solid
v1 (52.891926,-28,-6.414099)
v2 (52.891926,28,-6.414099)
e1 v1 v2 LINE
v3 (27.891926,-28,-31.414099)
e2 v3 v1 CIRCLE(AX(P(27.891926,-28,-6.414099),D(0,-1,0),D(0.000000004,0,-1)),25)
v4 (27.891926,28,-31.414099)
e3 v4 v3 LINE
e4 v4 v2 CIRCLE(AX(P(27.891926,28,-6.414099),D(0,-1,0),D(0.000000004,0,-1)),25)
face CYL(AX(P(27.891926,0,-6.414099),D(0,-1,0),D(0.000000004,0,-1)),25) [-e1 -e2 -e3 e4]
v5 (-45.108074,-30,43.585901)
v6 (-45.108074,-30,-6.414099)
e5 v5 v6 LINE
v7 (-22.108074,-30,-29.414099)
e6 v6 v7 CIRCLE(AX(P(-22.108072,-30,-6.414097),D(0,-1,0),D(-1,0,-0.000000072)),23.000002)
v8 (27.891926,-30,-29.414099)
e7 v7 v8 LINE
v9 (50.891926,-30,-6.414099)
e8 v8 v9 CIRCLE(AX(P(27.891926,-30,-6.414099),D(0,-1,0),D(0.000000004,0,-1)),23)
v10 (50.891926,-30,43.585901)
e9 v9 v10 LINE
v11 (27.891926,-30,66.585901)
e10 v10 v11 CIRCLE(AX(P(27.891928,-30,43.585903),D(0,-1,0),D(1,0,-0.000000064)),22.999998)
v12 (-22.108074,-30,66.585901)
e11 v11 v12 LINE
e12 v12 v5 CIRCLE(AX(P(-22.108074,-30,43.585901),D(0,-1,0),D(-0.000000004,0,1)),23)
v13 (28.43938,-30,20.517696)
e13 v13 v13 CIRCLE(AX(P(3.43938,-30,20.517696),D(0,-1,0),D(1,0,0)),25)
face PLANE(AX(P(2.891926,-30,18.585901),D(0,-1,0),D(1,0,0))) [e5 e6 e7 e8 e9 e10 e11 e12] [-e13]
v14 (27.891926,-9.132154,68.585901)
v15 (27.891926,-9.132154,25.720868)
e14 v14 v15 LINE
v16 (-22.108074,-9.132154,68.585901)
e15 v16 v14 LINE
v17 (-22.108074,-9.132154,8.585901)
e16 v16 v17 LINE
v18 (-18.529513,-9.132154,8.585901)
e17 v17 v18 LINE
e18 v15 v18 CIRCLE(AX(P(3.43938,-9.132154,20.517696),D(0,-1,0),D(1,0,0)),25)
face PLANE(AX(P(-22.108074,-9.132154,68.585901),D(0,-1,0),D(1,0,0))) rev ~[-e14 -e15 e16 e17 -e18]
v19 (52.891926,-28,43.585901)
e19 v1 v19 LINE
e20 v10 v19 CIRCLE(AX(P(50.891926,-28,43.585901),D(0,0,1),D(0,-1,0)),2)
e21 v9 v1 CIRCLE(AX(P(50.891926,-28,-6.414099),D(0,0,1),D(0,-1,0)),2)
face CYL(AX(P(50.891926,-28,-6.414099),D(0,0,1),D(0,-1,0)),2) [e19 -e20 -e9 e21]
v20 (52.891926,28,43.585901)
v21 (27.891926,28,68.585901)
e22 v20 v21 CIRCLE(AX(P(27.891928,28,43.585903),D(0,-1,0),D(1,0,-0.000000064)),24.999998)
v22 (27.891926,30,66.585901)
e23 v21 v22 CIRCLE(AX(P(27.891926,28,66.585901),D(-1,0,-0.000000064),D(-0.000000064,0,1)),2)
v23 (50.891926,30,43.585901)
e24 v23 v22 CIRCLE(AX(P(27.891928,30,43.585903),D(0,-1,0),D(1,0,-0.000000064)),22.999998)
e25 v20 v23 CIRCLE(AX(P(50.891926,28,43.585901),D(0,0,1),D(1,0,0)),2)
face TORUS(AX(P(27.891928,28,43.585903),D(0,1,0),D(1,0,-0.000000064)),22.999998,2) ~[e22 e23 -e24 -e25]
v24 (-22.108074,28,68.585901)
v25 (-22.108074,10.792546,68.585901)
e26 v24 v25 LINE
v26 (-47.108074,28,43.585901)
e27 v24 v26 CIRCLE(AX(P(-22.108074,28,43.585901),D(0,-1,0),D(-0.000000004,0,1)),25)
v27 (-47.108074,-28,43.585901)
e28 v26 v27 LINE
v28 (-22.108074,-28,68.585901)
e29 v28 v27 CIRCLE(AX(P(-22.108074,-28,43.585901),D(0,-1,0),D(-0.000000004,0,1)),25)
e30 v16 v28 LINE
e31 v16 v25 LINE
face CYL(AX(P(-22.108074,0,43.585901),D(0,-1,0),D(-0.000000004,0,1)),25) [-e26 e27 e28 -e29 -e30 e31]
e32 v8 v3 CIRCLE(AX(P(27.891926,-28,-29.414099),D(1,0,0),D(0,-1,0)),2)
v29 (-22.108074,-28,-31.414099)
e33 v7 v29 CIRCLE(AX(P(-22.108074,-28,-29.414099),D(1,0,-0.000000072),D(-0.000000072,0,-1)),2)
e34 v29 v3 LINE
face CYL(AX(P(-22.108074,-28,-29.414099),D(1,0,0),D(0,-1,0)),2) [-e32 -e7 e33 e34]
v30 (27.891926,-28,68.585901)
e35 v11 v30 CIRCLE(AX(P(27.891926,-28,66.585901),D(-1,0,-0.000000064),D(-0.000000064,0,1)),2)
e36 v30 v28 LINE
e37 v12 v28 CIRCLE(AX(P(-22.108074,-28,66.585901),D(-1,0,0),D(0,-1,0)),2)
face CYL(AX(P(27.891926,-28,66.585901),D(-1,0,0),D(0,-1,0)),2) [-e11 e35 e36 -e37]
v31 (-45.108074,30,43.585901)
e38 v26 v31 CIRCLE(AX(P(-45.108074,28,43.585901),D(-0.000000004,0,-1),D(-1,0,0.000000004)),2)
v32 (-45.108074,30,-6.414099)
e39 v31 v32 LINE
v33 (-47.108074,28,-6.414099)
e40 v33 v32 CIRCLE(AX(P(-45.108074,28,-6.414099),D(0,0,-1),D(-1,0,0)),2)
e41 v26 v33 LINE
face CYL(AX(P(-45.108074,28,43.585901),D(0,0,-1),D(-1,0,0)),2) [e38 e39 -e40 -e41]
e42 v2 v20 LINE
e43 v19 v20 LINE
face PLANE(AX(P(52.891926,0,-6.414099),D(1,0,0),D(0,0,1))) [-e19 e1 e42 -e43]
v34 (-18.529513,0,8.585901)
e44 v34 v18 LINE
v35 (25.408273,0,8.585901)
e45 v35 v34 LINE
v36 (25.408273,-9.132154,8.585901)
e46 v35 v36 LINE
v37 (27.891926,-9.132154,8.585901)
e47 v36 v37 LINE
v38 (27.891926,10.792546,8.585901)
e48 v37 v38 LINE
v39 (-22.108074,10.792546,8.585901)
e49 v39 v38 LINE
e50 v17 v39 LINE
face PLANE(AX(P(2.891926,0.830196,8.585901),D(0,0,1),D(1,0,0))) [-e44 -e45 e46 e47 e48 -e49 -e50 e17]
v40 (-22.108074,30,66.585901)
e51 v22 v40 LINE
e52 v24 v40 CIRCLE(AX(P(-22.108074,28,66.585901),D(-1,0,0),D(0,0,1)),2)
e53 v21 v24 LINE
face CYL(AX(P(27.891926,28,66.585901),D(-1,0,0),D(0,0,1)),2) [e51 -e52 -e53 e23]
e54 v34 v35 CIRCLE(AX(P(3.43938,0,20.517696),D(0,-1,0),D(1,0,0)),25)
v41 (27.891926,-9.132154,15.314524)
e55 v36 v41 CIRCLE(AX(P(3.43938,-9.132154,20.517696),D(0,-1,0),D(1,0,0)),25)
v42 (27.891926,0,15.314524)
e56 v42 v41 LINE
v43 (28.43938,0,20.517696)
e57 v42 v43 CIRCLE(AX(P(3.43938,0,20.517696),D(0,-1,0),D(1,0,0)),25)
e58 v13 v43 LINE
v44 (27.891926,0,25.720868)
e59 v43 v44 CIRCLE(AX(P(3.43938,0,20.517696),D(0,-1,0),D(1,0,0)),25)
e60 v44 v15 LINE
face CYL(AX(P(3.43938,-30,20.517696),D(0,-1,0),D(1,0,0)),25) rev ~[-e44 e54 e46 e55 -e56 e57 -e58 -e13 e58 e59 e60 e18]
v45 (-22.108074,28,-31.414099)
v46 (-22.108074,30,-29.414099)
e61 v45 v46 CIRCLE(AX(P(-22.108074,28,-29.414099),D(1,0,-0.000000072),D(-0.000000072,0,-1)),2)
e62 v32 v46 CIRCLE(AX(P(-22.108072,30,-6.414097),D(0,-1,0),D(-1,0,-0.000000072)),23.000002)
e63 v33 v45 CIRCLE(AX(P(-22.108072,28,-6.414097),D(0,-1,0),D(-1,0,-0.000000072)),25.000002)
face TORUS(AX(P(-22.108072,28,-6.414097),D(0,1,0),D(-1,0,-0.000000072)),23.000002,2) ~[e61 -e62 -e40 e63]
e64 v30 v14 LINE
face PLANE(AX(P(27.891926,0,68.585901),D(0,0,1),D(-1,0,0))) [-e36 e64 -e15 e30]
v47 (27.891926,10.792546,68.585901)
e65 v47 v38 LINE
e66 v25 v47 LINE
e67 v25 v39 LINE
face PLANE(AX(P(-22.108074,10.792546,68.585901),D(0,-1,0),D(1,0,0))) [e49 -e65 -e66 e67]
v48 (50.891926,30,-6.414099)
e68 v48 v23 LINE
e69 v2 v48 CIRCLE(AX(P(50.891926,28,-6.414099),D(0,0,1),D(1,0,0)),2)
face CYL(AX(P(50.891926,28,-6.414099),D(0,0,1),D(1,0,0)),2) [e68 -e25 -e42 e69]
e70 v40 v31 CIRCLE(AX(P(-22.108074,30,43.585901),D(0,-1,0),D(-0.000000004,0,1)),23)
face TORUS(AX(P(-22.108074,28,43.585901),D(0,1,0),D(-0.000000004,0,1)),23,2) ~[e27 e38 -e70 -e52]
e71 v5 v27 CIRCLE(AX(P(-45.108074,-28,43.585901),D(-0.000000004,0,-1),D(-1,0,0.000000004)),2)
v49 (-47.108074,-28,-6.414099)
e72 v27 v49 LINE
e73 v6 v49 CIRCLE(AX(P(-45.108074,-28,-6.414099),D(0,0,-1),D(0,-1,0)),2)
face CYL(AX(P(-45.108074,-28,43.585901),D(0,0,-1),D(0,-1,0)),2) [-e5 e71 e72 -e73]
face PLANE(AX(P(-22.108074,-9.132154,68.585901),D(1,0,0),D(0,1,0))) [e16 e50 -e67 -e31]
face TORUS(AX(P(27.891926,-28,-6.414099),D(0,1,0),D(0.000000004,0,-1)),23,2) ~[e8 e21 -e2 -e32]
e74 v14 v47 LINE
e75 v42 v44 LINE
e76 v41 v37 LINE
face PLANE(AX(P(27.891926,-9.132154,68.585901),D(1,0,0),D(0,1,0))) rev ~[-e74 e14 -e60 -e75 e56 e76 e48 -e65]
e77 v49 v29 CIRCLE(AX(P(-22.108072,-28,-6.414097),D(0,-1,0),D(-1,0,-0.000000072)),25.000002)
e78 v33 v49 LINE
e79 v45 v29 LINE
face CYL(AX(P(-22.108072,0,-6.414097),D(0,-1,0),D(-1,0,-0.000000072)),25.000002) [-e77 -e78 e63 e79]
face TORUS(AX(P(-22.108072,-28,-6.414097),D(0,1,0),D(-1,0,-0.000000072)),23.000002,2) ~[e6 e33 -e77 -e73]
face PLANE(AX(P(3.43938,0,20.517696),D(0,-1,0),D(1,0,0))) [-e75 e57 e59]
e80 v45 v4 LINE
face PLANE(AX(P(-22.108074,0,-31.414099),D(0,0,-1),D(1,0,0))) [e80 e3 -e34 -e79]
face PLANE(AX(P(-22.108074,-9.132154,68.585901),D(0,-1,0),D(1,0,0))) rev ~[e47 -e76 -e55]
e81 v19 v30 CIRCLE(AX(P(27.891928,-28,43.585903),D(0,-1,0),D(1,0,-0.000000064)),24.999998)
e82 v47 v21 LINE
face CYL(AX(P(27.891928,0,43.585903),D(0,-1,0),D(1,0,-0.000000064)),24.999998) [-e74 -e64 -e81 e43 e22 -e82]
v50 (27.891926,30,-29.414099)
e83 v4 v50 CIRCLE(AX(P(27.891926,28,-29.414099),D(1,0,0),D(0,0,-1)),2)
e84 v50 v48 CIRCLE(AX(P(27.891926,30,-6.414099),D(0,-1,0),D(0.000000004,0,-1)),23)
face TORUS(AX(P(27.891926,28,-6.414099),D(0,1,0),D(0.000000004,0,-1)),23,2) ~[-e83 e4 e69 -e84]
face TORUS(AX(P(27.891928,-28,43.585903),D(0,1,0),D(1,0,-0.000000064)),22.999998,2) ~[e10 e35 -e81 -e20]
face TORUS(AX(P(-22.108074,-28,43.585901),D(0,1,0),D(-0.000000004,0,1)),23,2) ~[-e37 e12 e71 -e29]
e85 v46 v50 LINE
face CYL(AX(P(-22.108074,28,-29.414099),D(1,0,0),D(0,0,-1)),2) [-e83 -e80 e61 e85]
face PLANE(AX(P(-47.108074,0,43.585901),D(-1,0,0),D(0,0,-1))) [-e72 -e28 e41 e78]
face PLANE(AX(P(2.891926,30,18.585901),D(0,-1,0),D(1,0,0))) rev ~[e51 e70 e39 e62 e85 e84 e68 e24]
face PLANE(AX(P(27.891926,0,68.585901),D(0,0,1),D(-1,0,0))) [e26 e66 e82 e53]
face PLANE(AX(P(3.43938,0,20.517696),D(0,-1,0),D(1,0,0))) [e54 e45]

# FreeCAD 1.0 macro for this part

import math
import FreeCAD as App
import Part
import Sketcher
from FreeCAD import Vector


def edges_at(feature, points):
    """Names of the edges that pass closest to the given points."""
    edges = feature.Shape.Edges
    near = lambda p: min(range(len(edges)), key=lambda i: edges[i].distToShape(Part.Vertex(*p))[0])
    return sorted({f"Edge{near(p) + 1}" for p in points})

doc = App.newDocument("Part")
body = doc.addObject("PartDesign::Body", "Body")

# Sketch on XZ plane
sketch1 = doc.addObject("Sketcher::SketchObject", "Sketch")
body.addObject(sketch1)
sketch1.AttachmentSupport = (doc.XZ_Plane, [""])
sketch1.MapMode = "FlatFace"
sketch1.addGeometry([
    Part.LineSegment(Vector(28, 69, 0), Vector(-22, 69, 0)),  # 0
    Part.ArcOfCircle(Part.Circle(Vector(-22, 44, 0), Vector(0, 0, 1), 25), math.radians(90), math.radians(180)),  # 1
    Part.LineSegment(Vector(-47, 44, 0), Vector(-47, -6, 0)),  # 2
    Part.ArcOfCircle(Part.Circle(Vector(-22, -6, 0), Vector(0, 0, 1), 25), math.radians(-180), math.radians(-90)),  # 3
    Part.LineSegment(Vector(-22, -31, 0), Vector(28, -31, 0)),  # 4
    Part.ArcOfCircle(Part.Circle(Vector(28, -6, 0), Vector(0, 0, 1), 25), math.radians(-90), math.radians(0)),  # 5
    Part.LineSegment(Vector(53, -6, 0), Vector(53, 44, 0)),  # 6
    Part.ArcOfCircle(Part.Circle(Vector(28, 44, 0), Vector(0, 0, 1), 25), math.radians(0), math.radians(90)),  # 7
], False)
sketch1.addConstraint([
    Sketcher.Constraint("Tangent", 0, 2, 1, 1),
    Sketcher.Constraint("Tangent", 1, 2, 2, 1),
    Sketcher.Constraint("Tangent", 2, 2, 3, 1),
    Sketcher.Constraint("Tangent", 3, 2, 4, 1),
    Sketcher.Constraint("Tangent", 4, 2, 5, 1),
    Sketcher.Constraint("Tangent", 5, 2, 6, 1),
    Sketcher.Constraint("Tangent", 6, 2, 7, 1),
    Sketcher.Constraint("Tangent", 7, 2, 0, 1),
    Sketcher.Constraint("Horizontal", 0),
    Sketcher.Constraint("Vertical", 2),
    Sketcher.Constraint("Horizontal", 4),
    Sketcher.Constraint("Vertical", 6),
    Sketcher.Constraint("Equal", 1, 3),
    Sketcher.Constraint("Equal", 3, 5),
    Sketcher.Constraint("Equal", 5, 7),
    Sketcher.Constraint("Equal", 4, 2),
    Sketcher.Constraint("Radius", 1, 25.0),
    Sketcher.Constraint("DistanceX", 0, 2, 0, 1, 50.0),
    Sketcher.Constraint("DistanceY", -1, 1, 1, 3, 43.585901),
    Sketcher.Constraint("DistanceX", 1, 3, -1, 1, 22.108074),
])
pad1 = doc.addObject("PartDesign::Pad", "Pad")
body.addObject(pad1)
pad1.Profile = sketch1
pad1.Length = 60
pad1.Midplane = True
doc.recompute()

fillet = doc.addObject("PartDesign::Fillet", "Fillet")
body.addObject(fillet)
fillet.Base = (pad1, edges_at(pad1, [
    (52.892, 30, 18.586),
    (45.57, 30, 61.264),
    (2.892, 30, 68.586),
    (-39.786, 30, 61.264),
    (-47.108, 30, 18.586),
    (-39.786, 30, -24.092),
    (2.892, 30, -31.414),
    (45.57, 30, -24.092),
]))
fillet.Radius = 2
doc.recompute()

fillet2 = doc.addObject("PartDesign::Fillet", "Fillet001")
body.addObject(fillet2)
fillet2.Base = (fillet, edges_at(fillet, [
    (52.892, -30, 18.586),
    (45.57, -30, 61.264),
    (2.892, -30, 68.586),
    (-39.786, -30, 61.264),
    (-47.108, -30, 18.586),
    (-39.786, -30, -24.092),
    (2.892, -30, -31.414),
    (45.57, -30, -24.092),
]))
fillet2.Radius = 2

# Sketch on XZ plane
sketch2 = doc.addObject("Sketcher::SketchObject", "Sketch001")
body.addObject(sketch2)
sketch2.AttachmentSupport = (doc.XZ_Plane, [""])
sketch2.MapMode = "FlatFace"
sketch2.AttachmentOffset = App.Placement(Vector(0, 0, 30), App.Rotation())
sketch2.addGeometry(Part.Circle(Vector(3, 21, 0), Vector(0, 0, 1), 25), False)
sketch2.addConstraint([
    Sketcher.Constraint("Diameter", 0, 50.0),
    Sketcher.Constraint("DistanceX", -1, 1, 0, 3, 3.43938),
    Sketcher.Constraint("DistanceY", -1, 1, 0, 3, 20.517696),
])
pocket1 = doc.addObject("PartDesign::Pocket", "Pocket")
body.addObject(pocket1)
pocket1.Profile = sketch2
pocket1.Length = 30

# Sketch on XY plane
sketch3 = doc.addObject("Sketcher::SketchObject", "Sketch002")
body.addObject(sketch3)
sketch3.AttachmentSupport = (doc.XY_Plane, [""])
sketch3.MapMode = "FlatFace"
sketch3.AttachmentOffset = App.Placement(Vector(0, 0, 68.585901), App.Rotation())
sketch3.addGeometry([
    Part.LineSegment(Vector(-22, 11, 0), Vector(-22, -9, 0)),
    Part.LineSegment(Vector(-22, -9, 0), Vector(28, -9, 0)),
    Part.LineSegment(Vector(28, -9, 0), Vector(28, 11, 0)),
    Part.LineSegment(Vector(28, 11, 0), Vector(-22, 11, 0)),
], False)
sketch3.addConstraint([
    Sketcher.Constraint("Coincident", 0, 2, 1, 1),
    Sketcher.Constraint("Coincident", 1, 2, 2, 1),
    Sketcher.Constraint("Coincident", 2, 2, 3, 1),
    Sketcher.Constraint("Coincident", 3, 2, 0, 1),
    Sketcher.Constraint("Vertical", 0),
    Sketcher.Constraint("Horizontal", 1),
    Sketcher.Constraint("Vertical", 2),
    Sketcher.Constraint("Horizontal", 3),
    Sketcher.Constraint("DistanceX", 1, 1, 1, 2, 50.0),
    Sketcher.Constraint("DistanceY", 0, 2, 0, 1, 19.9247),
    Sketcher.Constraint("DistanceX", 0, 2, -1, 1, 22.108074),
    Sketcher.Constraint("DistanceY", 0, 2, -1, 1, 9.132154),
])
pocket2 = doc.addObject("PartDesign::Pocket", "Pocket001")
body.addObject(pocket2)
pocket2.Profile = sketch3
pocket2.Length = 60

doc.recompute()
